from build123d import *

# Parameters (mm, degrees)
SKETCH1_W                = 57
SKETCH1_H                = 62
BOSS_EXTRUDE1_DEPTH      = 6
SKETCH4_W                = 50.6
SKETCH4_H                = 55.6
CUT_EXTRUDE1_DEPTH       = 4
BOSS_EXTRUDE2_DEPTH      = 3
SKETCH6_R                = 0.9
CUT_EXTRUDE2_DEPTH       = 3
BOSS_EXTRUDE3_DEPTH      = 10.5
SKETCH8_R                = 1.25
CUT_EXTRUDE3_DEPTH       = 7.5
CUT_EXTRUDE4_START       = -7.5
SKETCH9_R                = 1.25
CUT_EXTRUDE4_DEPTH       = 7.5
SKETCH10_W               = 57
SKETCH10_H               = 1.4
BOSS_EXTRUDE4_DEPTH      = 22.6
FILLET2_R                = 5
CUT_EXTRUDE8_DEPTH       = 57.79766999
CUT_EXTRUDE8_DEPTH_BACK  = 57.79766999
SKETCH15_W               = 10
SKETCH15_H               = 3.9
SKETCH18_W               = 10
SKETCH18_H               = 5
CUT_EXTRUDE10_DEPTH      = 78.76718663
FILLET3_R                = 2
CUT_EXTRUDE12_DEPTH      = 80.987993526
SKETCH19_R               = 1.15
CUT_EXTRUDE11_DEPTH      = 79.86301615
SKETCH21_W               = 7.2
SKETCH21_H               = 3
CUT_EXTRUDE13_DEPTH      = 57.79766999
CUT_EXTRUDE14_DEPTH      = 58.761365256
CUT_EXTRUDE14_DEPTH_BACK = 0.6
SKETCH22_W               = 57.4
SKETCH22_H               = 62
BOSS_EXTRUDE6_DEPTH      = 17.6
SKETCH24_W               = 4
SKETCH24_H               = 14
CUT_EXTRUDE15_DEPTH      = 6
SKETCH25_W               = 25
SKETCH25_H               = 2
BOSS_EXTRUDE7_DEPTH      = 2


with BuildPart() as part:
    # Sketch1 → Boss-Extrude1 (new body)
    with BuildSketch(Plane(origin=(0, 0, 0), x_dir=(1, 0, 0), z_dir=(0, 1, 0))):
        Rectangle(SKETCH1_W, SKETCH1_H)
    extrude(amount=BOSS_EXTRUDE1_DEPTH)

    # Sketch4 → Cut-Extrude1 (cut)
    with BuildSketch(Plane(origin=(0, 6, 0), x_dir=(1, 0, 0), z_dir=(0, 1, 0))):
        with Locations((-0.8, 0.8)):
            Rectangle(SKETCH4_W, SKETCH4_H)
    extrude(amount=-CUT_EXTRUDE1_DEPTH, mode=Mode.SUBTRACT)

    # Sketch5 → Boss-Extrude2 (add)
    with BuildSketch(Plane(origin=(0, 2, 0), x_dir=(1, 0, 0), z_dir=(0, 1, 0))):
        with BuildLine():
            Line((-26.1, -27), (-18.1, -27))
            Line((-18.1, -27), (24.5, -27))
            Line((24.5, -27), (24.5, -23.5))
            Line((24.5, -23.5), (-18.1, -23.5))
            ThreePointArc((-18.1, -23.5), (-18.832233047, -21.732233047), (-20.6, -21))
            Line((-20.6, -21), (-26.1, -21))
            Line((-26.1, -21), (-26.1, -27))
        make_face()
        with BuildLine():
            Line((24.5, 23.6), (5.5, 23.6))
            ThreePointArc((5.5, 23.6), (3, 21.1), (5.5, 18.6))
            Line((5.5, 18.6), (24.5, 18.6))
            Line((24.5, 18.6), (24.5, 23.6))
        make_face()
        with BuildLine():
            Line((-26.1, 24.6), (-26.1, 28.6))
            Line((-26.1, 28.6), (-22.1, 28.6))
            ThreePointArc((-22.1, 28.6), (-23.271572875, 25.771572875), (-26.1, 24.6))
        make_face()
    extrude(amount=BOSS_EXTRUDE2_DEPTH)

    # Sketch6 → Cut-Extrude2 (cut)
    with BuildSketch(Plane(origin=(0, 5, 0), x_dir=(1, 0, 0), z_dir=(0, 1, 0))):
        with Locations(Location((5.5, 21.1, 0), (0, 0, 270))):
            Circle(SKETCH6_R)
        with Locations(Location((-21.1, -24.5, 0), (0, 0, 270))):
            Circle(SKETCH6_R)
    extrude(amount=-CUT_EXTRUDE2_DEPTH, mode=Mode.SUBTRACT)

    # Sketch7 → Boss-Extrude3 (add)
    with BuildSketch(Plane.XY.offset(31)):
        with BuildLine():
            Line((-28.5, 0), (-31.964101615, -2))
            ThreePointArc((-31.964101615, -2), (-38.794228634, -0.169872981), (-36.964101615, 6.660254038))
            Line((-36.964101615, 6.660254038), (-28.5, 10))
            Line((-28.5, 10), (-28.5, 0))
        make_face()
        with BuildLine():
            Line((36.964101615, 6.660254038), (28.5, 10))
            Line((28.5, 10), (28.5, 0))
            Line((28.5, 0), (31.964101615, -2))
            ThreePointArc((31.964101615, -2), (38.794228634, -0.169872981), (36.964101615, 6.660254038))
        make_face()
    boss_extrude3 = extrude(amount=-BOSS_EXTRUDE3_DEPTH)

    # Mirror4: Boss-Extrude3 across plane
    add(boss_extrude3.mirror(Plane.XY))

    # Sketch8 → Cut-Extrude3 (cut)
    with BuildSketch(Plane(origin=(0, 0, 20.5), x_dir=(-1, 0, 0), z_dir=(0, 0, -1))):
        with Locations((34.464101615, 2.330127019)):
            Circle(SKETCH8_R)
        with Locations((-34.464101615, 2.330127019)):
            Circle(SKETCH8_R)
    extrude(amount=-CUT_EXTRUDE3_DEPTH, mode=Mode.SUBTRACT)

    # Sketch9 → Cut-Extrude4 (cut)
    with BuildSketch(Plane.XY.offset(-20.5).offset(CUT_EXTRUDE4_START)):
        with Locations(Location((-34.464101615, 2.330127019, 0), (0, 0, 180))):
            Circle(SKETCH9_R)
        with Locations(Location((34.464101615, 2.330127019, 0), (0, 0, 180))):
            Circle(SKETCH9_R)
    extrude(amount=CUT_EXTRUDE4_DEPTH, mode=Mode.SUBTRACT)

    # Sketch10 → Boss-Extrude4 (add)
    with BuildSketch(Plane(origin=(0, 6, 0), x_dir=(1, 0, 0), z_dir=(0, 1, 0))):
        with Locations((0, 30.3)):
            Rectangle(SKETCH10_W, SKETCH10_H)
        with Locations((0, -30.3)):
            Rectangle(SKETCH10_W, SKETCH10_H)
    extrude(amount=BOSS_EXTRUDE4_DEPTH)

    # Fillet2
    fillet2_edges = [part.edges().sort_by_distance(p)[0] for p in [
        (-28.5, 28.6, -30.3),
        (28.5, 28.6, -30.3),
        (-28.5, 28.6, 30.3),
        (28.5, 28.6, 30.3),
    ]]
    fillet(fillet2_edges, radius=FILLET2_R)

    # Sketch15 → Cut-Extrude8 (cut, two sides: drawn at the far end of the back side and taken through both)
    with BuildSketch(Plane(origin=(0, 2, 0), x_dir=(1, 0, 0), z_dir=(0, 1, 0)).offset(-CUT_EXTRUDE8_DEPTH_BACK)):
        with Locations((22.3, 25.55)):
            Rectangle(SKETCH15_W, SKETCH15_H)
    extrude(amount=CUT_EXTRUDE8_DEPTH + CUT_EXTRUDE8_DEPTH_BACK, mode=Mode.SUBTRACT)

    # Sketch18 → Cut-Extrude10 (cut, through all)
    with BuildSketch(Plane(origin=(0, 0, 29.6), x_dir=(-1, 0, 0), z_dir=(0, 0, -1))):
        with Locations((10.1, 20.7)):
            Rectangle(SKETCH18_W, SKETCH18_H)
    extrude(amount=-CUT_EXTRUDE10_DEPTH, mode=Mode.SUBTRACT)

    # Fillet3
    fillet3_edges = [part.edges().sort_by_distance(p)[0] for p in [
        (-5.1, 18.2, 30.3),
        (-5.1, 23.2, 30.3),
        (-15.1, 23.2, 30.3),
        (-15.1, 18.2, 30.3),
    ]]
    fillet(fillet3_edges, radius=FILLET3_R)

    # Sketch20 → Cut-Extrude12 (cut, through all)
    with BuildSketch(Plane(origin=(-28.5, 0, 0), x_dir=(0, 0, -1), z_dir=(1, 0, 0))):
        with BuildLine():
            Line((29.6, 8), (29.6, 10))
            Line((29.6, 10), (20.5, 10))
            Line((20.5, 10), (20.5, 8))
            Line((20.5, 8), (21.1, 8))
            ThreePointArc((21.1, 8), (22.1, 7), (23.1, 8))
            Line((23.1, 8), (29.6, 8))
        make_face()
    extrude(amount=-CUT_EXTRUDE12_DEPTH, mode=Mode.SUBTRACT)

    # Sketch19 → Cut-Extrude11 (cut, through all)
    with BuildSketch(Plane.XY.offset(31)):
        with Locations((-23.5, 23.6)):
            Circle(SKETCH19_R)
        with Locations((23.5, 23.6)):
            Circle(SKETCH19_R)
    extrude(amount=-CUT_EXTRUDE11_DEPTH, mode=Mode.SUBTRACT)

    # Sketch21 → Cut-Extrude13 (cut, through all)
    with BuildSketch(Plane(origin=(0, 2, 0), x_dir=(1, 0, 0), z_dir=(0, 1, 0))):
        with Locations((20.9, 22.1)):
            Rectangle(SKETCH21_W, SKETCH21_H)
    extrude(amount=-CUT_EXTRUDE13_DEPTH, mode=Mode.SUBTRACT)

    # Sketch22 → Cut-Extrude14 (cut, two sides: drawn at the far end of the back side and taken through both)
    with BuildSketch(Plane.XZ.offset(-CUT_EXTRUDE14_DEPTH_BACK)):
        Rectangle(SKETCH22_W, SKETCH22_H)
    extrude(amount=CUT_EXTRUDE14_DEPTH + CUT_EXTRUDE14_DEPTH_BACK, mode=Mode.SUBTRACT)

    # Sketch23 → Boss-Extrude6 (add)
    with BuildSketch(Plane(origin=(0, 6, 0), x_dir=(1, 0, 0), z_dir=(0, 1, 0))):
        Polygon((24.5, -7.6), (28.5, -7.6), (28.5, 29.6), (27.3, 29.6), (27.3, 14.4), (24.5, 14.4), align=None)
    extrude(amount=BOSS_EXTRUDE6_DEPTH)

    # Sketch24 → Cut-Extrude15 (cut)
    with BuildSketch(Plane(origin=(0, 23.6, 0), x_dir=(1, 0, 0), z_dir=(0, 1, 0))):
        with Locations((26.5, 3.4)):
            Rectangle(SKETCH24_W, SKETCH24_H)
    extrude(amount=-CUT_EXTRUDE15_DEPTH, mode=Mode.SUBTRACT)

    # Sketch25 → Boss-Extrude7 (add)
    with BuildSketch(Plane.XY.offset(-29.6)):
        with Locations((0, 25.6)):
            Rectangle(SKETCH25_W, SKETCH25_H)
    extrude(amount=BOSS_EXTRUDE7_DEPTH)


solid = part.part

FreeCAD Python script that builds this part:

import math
import FreeCAD as App
import Part
import Sketcher
from FreeCAD import Vector
Q = App.Units.Quantity


def edges_at(feature, points):
    """Names of the edges that pass closest to the given points."""
    edges = feature.Shape.Edges
    near = lambda p: min(range(len(edges)), key=lambda i: edges[i].distToShape(Part.Vertex(*p))[0])
    return sorted({f"Edge{near(p) + 1}" for p in points})

doc = App.newDocument("Part")
params = doc.addObject("Spreadsheet::Sheet", "Params")
for row, (alias, value) in enumerate([
    ("sketch1_width", "57 mm"),
    ("sketch1_height", "62 mm"),
    ("pad1_length", "6 mm"),
    ("sketch2_width", "50.6 mm"),
    ("sketch2_height", "55.6 mm"),
    ("pocket1_length", "4 mm"),
    ("sketch3_radius", "4 mm"),
    ("sketch3_radius2", "2.5 mm"),
    ("sketch3_width", "19 mm"),
    ("sketch3_height", "6 mm"),
    ("sketch3_width2", "50.6 mm"),
    ("pad2_length", "3 mm"),
    ("sketch4_diameter", "1.8 mm"),
    ("pocket2_length", "3 mm"),
    ("sketch5_radius", "5 mm"),
    ("sketch5_height", "10 mm"),
    ("sketch5_length", "4 mm"),
    ("pad3_length", "10.5 mm"),
    ("sketch6_diameter", "2.5 mm"),
    ("pocket3_length", "7.5 mm"),
    ("sketch7_diameter", "2.5 mm"),
    ("pocket4_length", "7.5 mm"),
    ("sketch8_width", "57 mm"),
    ("sketch8_height", "1.4 mm"),
    ("pad4_length", "22.6 mm"),
    ("fillet_radius", "5 mm"),
    ("sketch9_width", "10 mm"),
    ("sketch9_height", "3.9 mm"),
    ("sketch10_width", "10 mm"),
    ("sketch10_height", "5 mm"),
    ("fillet2_radius", "2 mm"),
    ("sketch11_radius", "1 mm"),
    ("sketch11_width", "2 mm"),
    ("sketch11_height", "9.1 mm"),
    ("sketch11_height2", "0.6 mm"),
    ("sketch12_diameter", "2.3 mm"),
    ("sketch13_height", "3 mm"),
    ("sketch13_width", "7.2 mm"),
    ("sketch14_height", "62 mm"),
    ("sketch14_width", "57.4 mm"),
    ("pocket10_length", "58.761365 mm"),
    ("pocket10_length2", "0.6 mm"),
    ("sketch15_width", "4 mm"),
    ("sketch15_height", "22 mm"),
    ("sketch15_width2", "1.2 mm"),
    ("sketch15_height2", "37.2 mm"),
    ("pad5_length", "17.6 mm"),
    ("sketch16_width", "4 mm"),
    ("sketch16_height", "14 mm"),
    ("pocket11_length", "6 mm"),
    ("sketch17_width", "25 mm"),
    ("sketch17_height", "2 mm"),
    ("pad6_length", "2 mm"),
], start=1):
    params.set(f"A{row}", alias)
    params.set(f"B{row}", "=" + value)
    params.setAlias(f"B{row}", alias)

body = doc.addObject("PartDesign::Body", "Body")

# Sketch on XZ plane
sketch1 = body.newObject("Sketcher::SketchObject", "Sketch")
sketch1.AttachmentSupport = (doc.getObject("XZ_Plane"), [""])
sketch1.MapMode = "FlatFace"
sketch1.addGeometry(Part.LineSegment(Vector(-28.5, -31, 0), Vector(-28.5, 31, 0)), False)
sketch1.addGeometry(Part.LineSegment(Vector(-28.5, 31, 0), Vector(28.5, 31, 0)), False)
sketch1.addGeometry(Part.LineSegment(Vector(28.5, 31, 0), Vector(28.5, -31, 0)), False)
sketch1.addGeometry(Part.LineSegment(Vector(28.5, -31, 0), Vector(-28.5, -31, 0)), False)
sketch1.addConstraint(Sketcher.Constraint("Coincident", 0, 2, 1, 1))
sketch1.addConstraint(Sketcher.Constraint("Coincident", 1, 2, 2, 1))
sketch1.addConstraint(Sketcher.Constraint("Coincident", 2, 2, 3, 1))
sketch1.addConstraint(Sketcher.Constraint("Coincident", 3, 2, 0, 1))
sketch1.addConstraint(Sketcher.Constraint("Vertical", 0))
sketch1.addConstraint(Sketcher.Constraint("Horizontal", 1))
sketch1.addConstraint(Sketcher.Constraint("Vertical", 2))
sketch1.addConstraint(Sketcher.Constraint("Horizontal", 3))
sketch1.addConstraint(Sketcher.Constraint("Symmetric", 0, 2, 2, 2, -1, 1))
sketch1.addConstraint(Sketcher.Constraint("DistanceX", 1, 1, 1, 2, Q("57 mm")))
sketch1.addConstraint(Sketcher.Constraint("DistanceY", 0, 1, 0, 2, Q("62 mm")))
sketch1.setExpression("Constraints[9]", "Params.sketch1_width")
sketch1.setExpression("Constraints[10]", "Params.sketch1_height")
pad1 = body.newObject("PartDesign::Pad", "Pad")
pad1.Profile = sketch1
pad1.setExpression("Length", "Params.pad1_length")
pad1.Reversed = True

# Sketch on XZ plane
sketch2 = body.newObject("Sketcher::SketchObject", "Sketch001")
sketch2.AttachmentSupport = (doc.getObject("XZ_Plane"), [""])
sketch2.MapMode = "FlatFace"
sketch2.AttachmentOffset = App.Placement(Vector(0, 0, -6), App.Rotation())
sketch2.addGeometry(Part.LineSegment(Vector(-26.1, -28.6, 0), Vector(-26.1, 27, 0)), False)
sketch2.addGeometry(Part.LineSegment(Vector(-26.1, 27, 0), Vector(24.5, 27, 0)), False)
sketch2.addGeometry(Part.LineSegment(Vector(24.5, 27, 0), Vector(24.5, -28.6, 0)), False)
sketch2.addGeometry(Part.LineSegment(Vector(24.5, -28.6, 0), Vector(-26.1, -28.6, 0)), False)
sketch2.addConstraint(Sketcher.Constraint("Coincident", 0, 2, 1, 1))
sketch2.addConstraint(Sketcher.Constraint("Coincident", 1, 2, 2, 1))
sketch2.addConstraint(Sketcher.Constraint("Coincident", 2, 2, 3, 1))
sketch2.addConstraint(Sketcher.Constraint("Coincident", 3, 2, 0, 1))
sketch2.addConstraint(Sketcher.Constraint("Vertical", 0))
sketch2.addConstraint(Sketcher.Constraint("Horizontal", 1))
sketch2.addConstraint(Sketcher.Constraint("Vertical", 2))
sketch2.addConstraint(Sketcher.Constraint("Horizontal", 3))
sketch2.addConstraint(Sketcher.Constraint("DistanceX", 1, 1, 1, 2, Q("50.6 mm")))
sketch2.addConstraint(Sketcher.Constraint("DistanceY", 0, 1, 0, 2, Q("55.6 mm")))
sketch2.addConstraint(Sketcher.Constraint("DistanceY", -1, 1, 0, 2, Q("27 mm")))
sketch2.addConstraint(Sketcher.Constraint("DistanceX", 0, 2, -1, 1, Q("26.1 mm")))
sketch2.setExpression("Constraints[8]", "Params.sketch2_width")
sketch2.setExpression("Constraints[9]", "Params.sketch2_height")
pocket1 = body.newObject("PartDesign::Pocket", "Pocket")
pocket1.Profile = sketch2
pocket1.setExpression("Length", "Params.pocket1_length")
pocket1.Reversed = True

# Sketch on XZ plane
sketch3 = body.newObject("Sketcher::SketchObject", "Sketch002")
sketch3.AttachmentSupport = (doc.getObject("XZ_Plane"), [""])
sketch3.MapMode = "FlatFace"
sketch3.AttachmentOffset = App.Placement(Vector(0, 0, -2), App.Rotation())
sketch3.addGeometry(Part.LineSegment(Vector(-26.1, 27, 0), Vector(24.5, 27, 0)), False)
sketch3.addGeometry(Part.LineSegment(Vector(24.5, 27, 0), Vector(24.5, 23.5, 0)), False)
sketch3.addGeometry(Part.LineSegment(Vector(24.5, 23.5, 0), Vector(-18.1, 23.5, 0)), False)
sketch3.addGeometry(Part.ArcOfCircle(Part.Circle(Vector(-20.6, 23.5, 0), Vector(0, 0, 1), 2.5), math.radians(-90), math.radians(0)), False)
sketch3.addGeometry(Part.LineSegment(Vector(-20.6, 21, 0), Vector(-26.1, 21, 0)), False)
sketch3.addGeometry(Part.LineSegment(Vector(-26.1, 21, 0), Vector(-26.1, 27, 0)), False)
sketch3.addGeometry(Part.LineSegment(Vector(24.5, -23.6, 0), Vector(5.5, -23.6, 0)), False)
sketch3.addGeometry(Part.ArcOfCircle(Part.Circle(Vector(5.5, -21.1, 0), Vector(0, 0, 1), 2.5), math.radians(90), math.radians(270)), False)
sketch3.addGeometry(Part.LineSegment(Vector(5.5, -18.6, 0), Vector(24.5, -18.6, 0)), False)
sketch3.addGeometry(Part.LineSegment(Vector(24.5, -18.6, 0), Vector(24.5, -23.6, 0)), False)
sketch3.addGeometry(Part.LineSegment(Vector(-26.1, -28.6, 0), Vector(-26.1, -24.6, 0)), False)
sketch3.addGeometry(Part.ArcOfCircle(Part.Circle(Vector(-26.1, -28.6, 0), Vector(0, 0, 1), 4), math.radians(0), math.radians(90)), False)
sketch3.addGeometry(Part.LineSegment(Vector(-22.1, -28.6, 0), Vector(-26.1, -28.6, 0)), False)
sketch3.addConstraint(Sketcher.Constraint("Coincident", 0, 2, 1, 1))
sketch3.addConstraint(Sketcher.Constraint("Coincident", 1, 2, 2, 1))
sketch3.addConstraint(Sketcher.Constraint("Coincident", 2, 2, 3, 2))
sketch3.addConstraint(Sketcher.Constraint("Tangent", 3, 1, 4, 1))
sketch3.addConstraint(Sketcher.Constraint("Coincident", 4, 2, 5, 1))
sketch3.addConstraint(Sketcher.Constraint("Coincident", 5, 2, 0, 1))
sketch3.addConstraint(Sketcher.Constraint("Tangent", 6, 2, 7, 2))
sketch3.addConstraint(Sketcher.Constraint("Tangent", 7, 1, 8, 1))
sketch3.addConstraint(Sketcher.Constraint("Coincident", 8, 2, 9, 1))
sketch3.addConstraint(Sketcher.Constraint("Coincident", 9, 2, 6, 1))
sketch3.addConstraint(Sketcher.Constraint("Coincident", 10, 2, 11, 2))
sketch3.addConstraint(Sketcher.Constraint("Coincident", 11, 1, 12, 1))
sketch3.addConstraint(Sketcher.Constraint("Coincident", 12, 2, 10, 1))
sketch3.addConstraint(Sketcher.Constraint("Horizontal", 0))
sketch3.addConstraint(Sketcher.Constraint("Vertical", 1))
sketch3.addConstraint(Sketcher.Constraint("Horizontal", 2))
sketch3.addConstraint(Sketcher.Constraint("Horizontal", 4))
sketch3.addConstraint(Sketcher.Constraint("Vertical", 5))
sketch3.addConstraint(Sketcher.Constraint("Horizontal", 6))
sketch3.addConstraint(Sketcher.Constraint("Horizontal", 8))
sketch3.addConstraint(Sketcher.Constraint("Vertical", 9))
sketch3.addConstraint(Sketcher.Constraint("Vertical", 10))
sketch3.addConstraint(Sketcher.Constraint("Horizontal", 12))
sketch3.addConstraint(Sketcher.Constraint("Coincident", 12, 2, 11, 3))
sketch3.addConstraint(Sketcher.Constraint("Equal", 3, 7))
sketch3.addConstraint(Sketcher.Constraint("Horizontal", 3, 3, 1, 2))
sketch3.addConstraint(Sketcher.Constraint("Vertical", 11, 3, 4, 2))
sketch3.addConstraint(Sketcher.Constraint("Vertical", 1, 2, 8, 2))
sketch3.addConstraint(Sketcher.Constraint("Radius", 11, Q("4 mm")))
sketch3.addConstraint(Sketcher.Constraint("Radius", 3, Q("2.5 mm")))
sketch3.addConstraint(Sketcher.Constraint("DistanceX", 6, 2, 6, 1, Q("19 mm")))
sketch3.addConstraint(Sketcher.Constraint("DistanceY", 5, 1, 5, 2, Q("6 mm")))
sketch3.addConstraint(Sketcher.Constraint("DistanceX", 0, 1, 0, 2, Q("50.6 mm")))
sketch3.addConstraint(Sketcher.Constraint("DistanceX", 2, 2, 2, 1, Q("42.6 mm")))
sketch3.addConstraint(Sketcher.Constraint("DistanceY", -1, 1, 0, 2, Q("27 mm")))
sketch3.addConstraint(Sketcher.Constraint("DistanceY", 11, 3, 6, 2, Q("5 mm")))
sketch3.addConstraint(Sketcher.Constraint("DistanceX", 3, 3, -1, 1, Q("20.6 mm")))
sketch3.addConstraint(Sketcher.Constraint("DistanceY", 7, 3, -1, 1, Q("21.1 mm")))
sketch3.setExpression("Constraints[28]", "Params.sketch3_radius")
sketch3.setExpression("Constraints[29]", "Params.sketch3_radius2")
sketch3.setExpression("Constraints[30]", "Params.sketch3_width")
sketch3.setExpression("Constraints[31]", "Params.sketch3_height")
sketch3.setExpression("Constraints[32]", "Params.sketch3_width2")
pad2 = body.newObject("PartDesign::Pad", "Pad001")
pad2.Profile = sketch3
pad2.setExpression("Length", "Params.pad2_length")
pad2.Reversed = True

# Sketch on XZ plane
sketch4 = body.newObject("Sketcher::SketchObject", "Sketch003")
sketch4.AttachmentSupport = (doc.getObject("XZ_Plane"), [""])
sketch4.MapMode = "FlatFace"
sketch4.AttachmentOffset = App.Placement(Vector(0, 0, -5), App.Rotation())
sketch4.addGeometry(Part.Circle(Vector(5.5, -21.1, 0), Vector(0, 0, 1), 0.9), False)
sketch4.addGeometry(Part.Circle(Vector(-21.1, 24.5, 0), Vector(0, 0, 1), 0.9), False)
sketch4.addConstraint(Sketcher.Constraint("Equal", 0, 1))
sketch4.addConstraint(Sketcher.Constraint("Diameter", 0, Q("1.8 mm")))
sketch4.addConstraint(Sketcher.Constraint("DistanceX", -1, 1, 0, 3, Q("5.5 mm")))
sketch4.addConstraint(Sketcher.Constraint("DistanceY", 0, 3, -1, 1, Q("21.1 mm")))
sketch4.addConstraint(Sketcher.Constraint("DistanceX", 1, 3, -1, 1, Q("21.1 mm")))
sketch4.addConstraint(Sketcher.Constraint("DistanceY", -1, 1, 1, 3, Q("24.5 mm")))
sketch4.setExpression("Constraints[1]", "Params.sketch4_diameter")
pocket2 = body.newObject("PartDesign::Pocket", "Pocket001")
pocket2.Profile = sketch4
pocket2.setExpression("Length", "Params.pocket2_length")
pocket2.Reversed = True

# Sketch on XY plane
sketch5 = body.newObject("Sketcher::SketchObject", "Sketch004")
sketch5.AttachmentSupport = (doc.getObject("XY_Plane"), [""])
sketch5.MapMode = "FlatFace"
sketch5.AttachmentOffset = App.Placement(Vector(0, 0, 31), App.Rotation())
sketch5.addGeometry(Part.LineSegment(Vector(-31.964102, -2, 0), Vector(-28.5, 0, 0)), False)
sketch5.addGeometry(Part.LineSegment(Vector(-28.5, 0, 0), Vector(-28.5, 10, 0)), False)
sketch5.addGeometry(Part.LineSegment(Vector(-28.5, 10, 0), Vector(-36.964102, 6.660254, 0)), False)
sketch5.addGeometry(Part.ArcOfCircle(Part.Circle(Vector(-34.464102, 2.330127, 0), Vector(0, 0, 1), 5), math.radians(120), math.radians(300)), False)
sketch5.addGeometry(Part.LineSegment(Vector(36.964102, 6.660254, 0), Vector(28.5, 10, 0)), False)
sketch5.addGeometry(Part.LineSegment(Vector(28.5, 10, 0), Vector(28.5, 0, 0)), False)
sketch5.addGeometry(Part.LineSegment(Vector(28.5, 0, 0), Vector(31.964102, -2, 0)), False)
sketch5.addGeometry(Part.ArcOfCircle(Part.Circle(Vector(34.464102, 2.330127, 0), Vector(0, 0, 1), 5), math.radians(-120), math.radians(60)), False)
sketch5.addConstraint(Sketcher.Constraint("Coincident", 0, 2, 1, 1))
sketch5.addConstraint(Sketcher.Constraint("Coincident", 1, 2, 2, 1))
sketch5.addConstraint(Sketcher.Constraint("Coincident", 2, 2, 3, 1))
sketch5.addConstraint(Sketcher.Constraint("Tangent", 3, 2, 0, 1))
sketch5.addConstraint(Sketcher.Constraint("Coincident", 4, 2, 5, 1))
sketch5.addConstraint(Sketcher.Constraint("Coincident", 5, 2, 6, 1))
sketch5.addConstraint(Sketcher.Constraint("Tangent", 6, 2, 7, 1))
sketch5.addConstraint(Sketcher.Constraint("Coincident", 7, 2, 4, 1))
sketch5.addConstraint(Sketcher.Constraint("Vertical", 1))
sketch5.addConstraint(Sketcher.Constraint("Vertical", 5))
sketch5.addConstraint(Sketcher.Constraint("Equal", 3, 7))
sketch5.addConstraint(Sketcher.Constraint("Symmetric", 0, 2, 5, 2, -1, 1))
sketch5.addConstraint(Sketcher.Constraint("Symmetric", 3, 3, 7, 3, -2))
sketch5.addConstraint(Sketcher.Constraint("PointOnObject", 0, 2, -1))
sketch5.addConstraint(Sketcher.Constraint("Horizontal", 1, 2, 4, 2))
sketch5.addConstraint(Sketcher.Constraint("Horizontal", 2, 2, 7, 2))
sketch5.addConstraint(Sketcher.Constraint("Radius", 3, Q("5 mm")))
sketch5.addConstraint(Sketcher.Constraint("DistanceY", 1, 1, 1, 2, Q("10 mm")))
sketch5.addConstraint(Sketcher.Constraint("Angle", 0, Q("30 deg")))
sketch5.addConstraint(Sketcher.Constraint("Distance", 0, Q("4 mm")))
sketch5.addConstraint(Sketcher.Constraint("DistanceX", 2, 2, 3, 2, Q("5 mm")))
sketch5.addConstraint(Sketcher.Constraint("DistanceX", 1, 2, 4, 2, Q("57 mm")))
sketch5.setExpression("Constraints[16]", "Params.sketch5_radius")
sketch5.setExpression("Constraints[17]", "Params.sketch5_height")
sketch5.setExpression("Constraints[19]", "Params.sketch5_length")
pad3 = body.newObject("PartDesign::Pad", "Pad002")
pad3.Profile = sketch5
pad3.setExpression("Length", "Params.pad3_length")
pad3.Reversed = True
doc.recompute()

mirrored = body.newObject("PartDesign::Mirrored", "Mirrored")
mirrored.Originals = [pad3]
mirrored.MirrorPlane = (doc.getObject("XY_Plane"), [""])
body.Tip = mirrored

# Sketch on XY plane
sketch6 = body.newObject("Sketcher::SketchObject", "Sketch005")
sketch6.AttachmentSupport = (doc.getObject("XY_Plane"), [""])
sketch6.MapMode = "FlatFace"
sketch6.AttachmentOffset = App.Placement(Vector(0, 0, 20.5), App.Rotation())
sketch6.addGeometry(Part.Circle(Vector(-34.464102, 2.330127, 0), Vector(0, 0, 1), 1.25), False)
sketch6.addGeometry(Part.Circle(Vector(34.464102, 2.330127, 0), Vector(0, 0, 1), 1.25), False)
sketch6.addConstraint(Sketcher.Constraint("Equal", 0, 1))
sketch6.addConstraint(Sketcher.Constraint("Symmetric", 0, 3, 1, 3, -2))
sketch6.addConstraint(Sketcher.Constraint("Diameter", 0, Q("2.5 mm")))
sketch6.addConstraint(Sketcher.Constraint("DistanceX", 0, 3, -1, 1, Q("34.464102 mm")))
sketch6.addConstraint(Sketcher.Constraint("DistanceY", -1, 1, 0, 3, Q("2.330127 mm")))
sketch6.setExpression("Constraints[2]", "Params.sketch6_diameter")
pocket3 = body.newObject("PartDesign::Pocket", "Pocket002")
pocket3.Profile = sketch6
pocket3.setExpression("Length", "Params.pocket3_length")
pocket3.Reversed = True

# Sketch on XY plane
sketch7 = body.newObject("Sketcher::SketchObject", "Sketch006")
sketch7.AttachmentSupport = (doc.getObject("XY_Plane"), [""])
sketch7.MapMode = "FlatFace"
sketch7.AttachmentOffset = App.Placement(Vector(0, 0, -28), App.Rotation())
sketch7.addGeometry(Part.Circle(Vector(-34.464102, 2.330127, 0), Vector(0, 0, 1), 1.25), False)
sketch7.addGeometry(Part.Circle(Vector(34.464102, 2.330127, 0), Vector(0, 0, 1), 1.25), False)
sketch7.addConstraint(Sketcher.Constraint("Equal", 0, 1))
sketch7.addConstraint(Sketcher.Constraint("Symmetric", 0, 3, 1, 3, -2))
sketch7.addConstraint(Sketcher.Constraint("Diameter", 0, Q("2.5 mm")))
sketch7.addConstraint(Sketcher.Constraint("DistanceX", 0, 3, -1, 1, Q("34.464102 mm")))
sketch7.addConstraint(Sketcher.Constraint("DistanceY", -1, 1, 0, 3, Q("2.330127 mm")))
sketch7.setExpression("Constraints[2]", "Params.sketch7_diameter")
pocket4 = body.newObject("PartDesign::Pocket", "Pocket003")
pocket4.Profile = sketch7
pocket4.setExpression("Length", "Params.pocket4_length")
pocket4.Reversed = True

# Sketch on XZ plane
sketch8 = body.newObject("Sketcher::SketchObject", "Sketch007")
sketch8.AttachmentSupport = (doc.getObject("XZ_Plane"), [""])
sketch8.MapMode = "FlatFace"
sketch8.AttachmentOffset = App.Placement(Vector(0, 0, -6), App.Rotation())
sketch8.addGeometry(Part.LineSegment(Vector(-28.5, -31, 0), Vector(-28.5, -29.6, 0)), False)
sketch8.addGeometry(Part.LineSegment(Vector(-28.5, -29.6, 0), Vector(28.5, -29.6, 0)), False)
sketch8.addGeometry(Part.LineSegment(Vector(28.5, -29.6, 0), Vector(28.5, -31, 0)), False)
sketch8.addGeometry(Part.LineSegment(Vector(28.5, -31, 0), Vector(-28.5, -31, 0)), False)
sketch8.addGeometry(Part.LineSegment(Vector(-28.5, 29.6, 0), Vector(-28.5, 31, 0)), False)
sketch8.addGeometry(Part.LineSegment(Vector(-28.5, 31, 0), Vector(28.5, 31, 0)), False)
sketch8.addGeometry(Part.LineSegment(Vector(28.5, 31, 0), Vector(28.5, 29.6, 0)), False)
sketch8.addGeometry(Part.LineSegment(Vector(28.5, 29.6, 0), Vector(-28.5, 29.6, 0)), False)
sketch8.addConstraint(Sketcher.Constraint("Coincident", 0, 2, 1, 1))
sketch8.addConstraint(Sketcher.Constraint("Coincident", 1, 2, 2, 1))
sketch8.addConstraint(Sketcher.Constraint("Coincident", 2, 2, 3, 1))
sketch8.addConstraint(Sketcher.Constraint("Coincident", 3, 2, 0, 1))
sketch8.addConstraint(Sketcher.Constraint("Coincident", 4, 2, 5, 1))
sketch8.addConstraint(Sketcher.Constraint("Coincident", 5, 2, 6, 1))
sketch8.addConstraint(Sketcher.Constraint("Coincident", 6, 2, 7, 1))
sketch8.addConstraint(Sketcher.Constraint("Coincident", 7, 2, 4, 1))
sketch8.addConstraint(Sketcher.Constraint("Vertical", 0))
sketch8.addConstraint(Sketcher.Constraint("Horizontal", 1))
sketch8.addConstraint(Sketcher.Constraint("Vertical", 2))
sketch8.addConstraint(Sketcher.Constraint("Horizontal", 3))
sketch8.addConstraint(Sketcher.Constraint("Vertical", 4))
sketch8.addConstraint(Sketcher.Constraint("Horizontal", 5))
sketch8.addConstraint(Sketcher.Constraint("Vertical", 6))
sketch8.addConstraint(Sketcher.Constraint("Horizontal", 7))
sketch8.addConstraint(Sketcher.Constraint("Symmetric", 2, 2, 4, 2, -1, 1))
sketch8.addConstraint(Sketcher.Constraint("Symmetric", 0, 2, 6, 2, -1, 1))
sketch8.addConstraint(Sketcher.Constraint("Vertical", 3, 2, 4, 2))
sketch8.addConstraint(Sketcher.Constraint("DistanceX", 1, 1, 1, 2, Q("57 mm")))
sketch8.addConstraint(Sketcher.Constraint("DistanceY", 0, 1, 0, 2, Q("1.4 mm")))
sketch8.addConstraint(Sketcher.Constraint("DistanceY", 2, 2, -1, 1, Q("31 mm")))
sketch8.setExpression("Constraints[19]", "Params.sketch8_width")
sketch8.setExpression("Constraints[20]", "Params.sketch8_height")
pad4 = body.newObject("PartDesign::Pad", "Pad003")
pad4.Profile = sketch8
pad4.setExpression("Length", "Params.pad4_length")
pad4.Reversed = True
doc.recompute()

fillet = body.newObject("PartDesign::Fillet", "Fillet")
fillet.Base = (pad4, edges_at(pad4, [
    (-28.5, 28.6, -30.3),
    (28.5, 28.6, -30.3),
    (-28.5, 28.6, 30.3),
    (28.5, 28.6, 30.3),
]))
fillet.setExpression("Radius", "Params.fillet_radius")

# Sketch on XZ plane
sketch9 = body.newObject("Sketcher::SketchObject", "Sketch008")
sketch9.AttachmentSupport = (doc.getObject("XZ_Plane"), [""])
sketch9.MapMode = "FlatFace"
sketch9.AttachmentOffset = App.Placement(Vector(0, 0, -2), App.Rotation())
sketch9.addGeometry(Part.LineSegment(Vector(17.3, -27.5, 0), Vector(17.3, -23.6, 0)), False)
sketch9.addGeometry(Part.LineSegment(Vector(17.3, -23.6, 0), Vector(27.3, -23.6, 0)), False)
sketch9.addGeometry(Part.LineSegment(Vector(27.3, -23.6, 0), Vector(27.3, -27.5, 0)), False)
sketch9.addGeometry(Part.LineSegment(Vector(27.3, -27.5, 0), Vector(17.3, -27.5, 0)), False)
sketch9.addConstraint(Sketcher.Constraint("Coincident", 0, 2, 1, 1))
sketch9.addConstraint(Sketcher.Constraint("Coincident", 1, 2, 2, 1))
sketch9.addConstraint(Sketcher.Constraint("Coincident", 2, 2, 3, 1))
sketch9.addConstraint(Sketcher.Constraint("Coincident", 3, 2, 0, 1))
sketch9.addConstraint(Sketcher.Constraint("Vertical", 0))
sketch9.addConstraint(Sketcher.Constraint("Horizontal", 1))
sketch9.addConstraint(Sketcher.Constraint("Vertical", 2))
sketch9.addConstraint(Sketcher.Constraint("Horizontal", 3))
sketch9.addConstraint(Sketcher.Constraint("DistanceX", 1, 1, 1, 2, Q("10 mm")))
sketch9.addConstraint(Sketcher.Constraint("DistanceY", 0, 1, 0, 2, Q("3.9 mm")))
sketch9.addConstraint(Sketcher.Constraint("DistanceX", -1, 1, 0, 2, Q("17.3 mm")))
sketch9.addConstraint(Sketcher.Constraint("DistanceY", 0, 2, -1, 1, Q("23.6 mm")))
sketch9.setExpression("Constraints[8]", "Params.sketch9_width")
sketch9.setExpression("Constraints[9]", "Params.sketch9_height")
pocket5 = body.newObject("PartDesign::Pocket", "Pocket004")
pocket5.Profile = sketch9
pocket5.Type = "ThroughAll"
pocket5.Midplane = True

# Sketch on XY plane
sketch10 = body.newObject("Sketcher::SketchObject", "Sketch009")
sketch10.AttachmentSupport = (doc.getObject("XY_Plane"), [""])
sketch10.MapMode = "FlatFace"
sketch10.AttachmentOffset = App.Placement(Vector(0, 0, 29.6), App.Rotation())
sketch10.addGeometry(Part.LineSegment(Vector(-5.1, 23.2, 0), Vector(-5.1, 18.2, 0)), False)
sketch10.addGeometry(Part.LineSegment(Vector(-5.1, 18.2, 0), Vector(-15.1, 18.2, 0)), False)
sketch10.addGeometry(Part.LineSegment(Vector(-15.1, 18.2, 0), Vector(-15.1, 23.2, 0)), False)
sketch10.addGeometry(Part.LineSegment(Vector(-15.1, 23.2, 0), Vector(-5.1, 23.2, 0)), False)
sketch10.addConstraint(Sketcher.Constraint("Coincident", 0, 2, 1, 1))
sketch10.addConstraint(Sketcher.Constraint("Coincident", 1, 2, 2, 1))
sketch10.addConstraint(Sketcher.Constraint("Coincident", 2, 2, 3, 1))
sketch10.addConstraint(Sketcher.Constraint("Coincident", 3, 2, 0, 1))
sketch10.addConstraint(Sketcher.Constraint("Vertical", 0))
sketch10.addConstraint(Sketcher.Constraint("Horizontal", 1))
sketch10.addConstraint(Sketcher.Constraint("Vertical", 2))
sketch10.addConstraint(Sketcher.Constraint("Horizontal", 3))
sketch10.addConstraint(Sketcher.Constraint("DistanceX", 1, 2, 1, 1, Q("10 mm")))
sketch10.addConstraint(Sketcher.Constraint("DistanceY", 0, 2, 0, 1, Q("5 mm")))
sketch10.addConstraint(Sketcher.Constraint("DistanceX", 0, 2, -1, 1, Q("5.1 mm")))
sketch10.addConstraint(Sketcher.Constraint("DistanceY", -1, 1, 0, 2, Q("18.2 mm")))
sketch10.setExpression("Constraints[8]", "Params.sketch10_width")
sketch10.setExpression("Constraints[9]", "Params.sketch10_height")
pocket6 = body.newObject("PartDesign::Pocket", "Pocket005")
pocket6.Profile = sketch10
pocket6.Type = "ThroughAll"
pocket6.Reversed = True
doc.recompute()

fillet2 = body.newObject("PartDesign::Fillet", "Fillet001")
fillet2.Base = (pocket6, edges_at(pocket6, [
    (-5.1, 18.2, 30.3),
    (-5.1, 23.2, 30.3),
    (-15.1, 23.2, 30.3),
    (-15.1, 18.2, 30.3),
]))
fillet2.setExpression("Radius", "Params.fillet2_radius")

# Sketch on YZ plane
sketch11 = body.newObject("Sketcher::SketchObject", "Sketch010")
sketch11.AttachmentSupport = (doc.getObject("YZ_Plane"), [""])
sketch11.MapMode = "FlatFace"
sketch11.AttachmentOffset = App.Placement(Vector(0, 0, -28.5), App.Rotation())
sketch11.addGeometry(Part.LineSegment(Vector(8, -29.6, 0), Vector(10, -29.6, 0)), False)
sketch11.addGeometry(Part.LineSegment(Vector(10, -29.6, 0), Vector(10, -20.5, 0)), False)
sketch11.addGeometry(Part.LineSegment(Vector(10, -20.5, 0), Vector(8, -20.5, 0)), False)
sketch11.addGeometry(Part.LineSegment(Vector(8, -20.5, 0), Vector(8, -21.1, 0)), False)
sketch11.addGeometry(Part.ArcOfCircle(Part.Circle(Vector(8, -22.1, 0), Vector(0, 0, 1), 1), math.radians(90), math.radians(270)), False)
sketch11.addGeometry(Part.LineSegment(Vector(8, -23.1, 0), Vector(8, -29.6, 0)), False)
sketch11.addConstraint(Sketcher.Constraint("Coincident", 0, 2, 1, 1))
sketch11.addConstraint(Sketcher.Constraint("Coincident", 1, 2, 2, 1))
sketch11.addConstraint(Sketcher.Constraint("Coincident", 2, 2, 3, 1))
sketch11.addConstraint(Sketcher.Constraint("Coincident", 3, 2, 4, 1))
sketch11.addConstraint(Sketcher.Constraint("Coincident", 4, 2, 5, 1))
sketch11.addConstraint(Sketcher.Constraint("Coincident", 5, 2, 0, 1))
sketch11.addConstraint(Sketcher.Constraint("Horizontal", 0))
sketch11.addConstraint(Sketcher.Constraint("Vertical", 1))
sketch11.addConstraint(Sketcher.Constraint("Horizontal", 2))
sketch11.addConstraint(Sketcher.Constraint("Vertical", 3))
sketch11.addConstraint(Sketcher.Constraint("Vertical", 5))
sketch11.addConstraint(Sketcher.Constraint("Vertical", 4, 3, 2, 2))
sketch11.addConstraint(Sketcher.Constraint("Vertical", 3, 2, 4, 2))
sketch11.addConstraint(Sketcher.Constraint("Radius", 4, Q("1 mm")))
sketch11.addConstraint(Sketcher.Constraint("DistanceX", 0, 1, 0, 2, Q("2 mm")))
sketch11.addConstraint(Sketcher.Constraint("DistanceY", 1, 1, 1, 2, Q("9.1 mm")))
sketch11.addConstraint(Sketcher.Constraint("DistanceY", 3, 2, 3, 1, Q("0.6 mm")))
sketch11.addConstraint(Sketcher.Constraint("DistanceX", -1, 1, 4, 3, Q("8 mm")))
sketch11.addConstraint(Sketcher.Constraint("DistanceY", 4, 3, -1, 1, Q("22.1 mm")))
sketch11.setExpression("Constraints[13]", "Params.sketch11_radius")
sketch11.setExpression("Constraints[14]", "Params.sketch11_width")
sketch11.setExpression("Constraints[15]", "Params.sketch11_height")
sketch11.setExpression("Constraints[16]", "Params.sketch11_height2")
pocket7 = body.newObject("PartDesign::Pocket", "Pocket006")
pocket7.Profile = sketch11
pocket7.Type = "ThroughAll"

# Sketch on XY plane
sketch12 = body.newObject("Sketcher::SketchObject", "Sketch011")
sketch12.AttachmentSupport = (doc.getObject("XY_Plane"), [""])
sketch12.MapMode = "FlatFace"
sketch12.AttachmentOffset = App.Placement(Vector(0, 0, 31), App.Rotation())
sketch12.addGeometry(Part.Circle(Vector(-23.5, 23.6, 0), Vector(0, 0, 1), 1.15), False)
sketch12.addGeometry(Part.Circle(Vector(23.5, 23.6, 0), Vector(0, 0, 1), 1.15), False)
sketch12.addConstraint(Sketcher.Constraint("Equal", 0, 1))
sketch12.addConstraint(Sketcher.Constraint("Symmetric", 0, 3, 1, 3, -2))
sketch12.addConstraint(Sketcher.Constraint("Diameter", 0, Q("2.3 mm")))
sketch12.addConstraint(Sketcher.Constraint("DistanceX", 0, 3, 1, 3, Q("47 mm")))
sketch12.addConstraint(Sketcher.Constraint("DistanceY", -1, 1, 0, 3, Q("23.6 mm")))
sketch12.setExpression("Constraints[2]", "Params.sketch12_diameter")
pocket8 = body.newObject("PartDesign::Pocket", "Pocket007")
pocket8.Profile = sketch12
pocket8.Type = "ThroughAll"

# Sketch on XZ plane
sketch13 = body.newObject("Sketcher::SketchObject", "Sketch012")
sketch13.AttachmentSupport = (doc.getObject("XZ_Plane"), [""])
sketch13.MapMode = "FlatFace"
sketch13.AttachmentOffset = App.Placement(Vector(0, 0, -2), App.Rotation())
sketch13.addGeometry(Part.LineSegment(Vector(17.3, -23.6, 0), Vector(17.3, -20.6, 0)), False)
sketch13.addGeometry(Part.LineSegment(Vector(17.3, -20.6, 0), Vector(24.5, -20.6, 0)), False)
sketch13.addGeometry(Part.LineSegment(Vector(24.5, -20.6, 0), Vector(24.5, -23.6, 0)), False)
sketch13.addGeometry(Part.LineSegment(Vector(24.5, -23.6, 0), Vector(17.3, -23.6, 0)), False)
sketch13.addConstraint(Sketcher.Constraint("Coincident", 0, 2, 1, 1))
sketch13.addConstraint(Sketcher.Constraint("Coincident", 1, 2, 2, 1))
sketch13.addConstraint(Sketcher.Constraint("Coincident", 2, 2, 3, 1))
sketch13.addConstraint(Sketcher.Constraint("Coincident", 3, 2, 0, 1))
sketch13.addConstraint(Sketcher.Constraint("Vertical", 0))
sketch13.addConstraint(Sketcher.Constraint("Horizontal", 1))
sketch13.addConstraint(Sketcher.Constraint("Vertical", 2))
sketch13.addConstraint(Sketcher.Constraint("Horizontal", 3))
sketch13.addConstraint(Sketcher.Constraint("DistanceY", 0, 1, 0, 2, Q("3 mm")))
sketch13.addConstraint(Sketcher.Constraint("DistanceX", 1, 1, 1, 2, Q("7.2 mm")))
sketch13.addConstraint(Sketcher.Constraint("DistanceX", -1, 1, 0, 2, Q("17.3 mm")))
sketch13.addConstraint(Sketcher.Constraint("DistanceY", 0, 2, -1, 1, Q("20.6 mm")))
sketch13.setExpression("Constraints[8]", "Params.sketch13_height")
sketch13.setExpression("Constraints[9]", "Params.sketch13_width")
pocket9 = body.newObject("PartDesign::Pocket", "Pocket008")
pocket9.Profile = sketch13
pocket9.Type = "ThroughAll"
pocket9.Reversed = True

# Sketch on XZ plane
sketch14 = body.newObject("Sketcher::SketchObject", "Sketch013")
sketch14.AttachmentSupport = (doc.getObject("XZ_Plane"), [""])
sketch14.MapMode = "FlatFace"
sketch14.addGeometry(Part.LineSegment(Vector(-28.7, 31, 0), Vector(-28.7, -31, 0)), False)
sketch14.addGeometry(Part.LineSegment(Vector(-28.7, -31, 0), Vector(28.7, -31, 0)), False)
sketch14.addGeometry(Part.LineSegment(Vector(28.7, -31, 0), Vector(28.7, 31, 0)), False)
sketch14.addGeometry(Part.LineSegment(Vector(28.7, 31, 0), Vector(-28.7, 31, 0)), False)
sketch14.addConstraint(Sketcher.Constraint("Coincident", 0, 2, 1, 1))
sketch14.addConstraint(Sketcher.Constraint("Coincident", 1, 2, 2, 1))
sketch14.addConstraint(Sketcher.Constraint("Coincident", 2, 2, 3, 1))
sketch14.addConstraint(Sketcher.Constraint("Coincident", 3, 2, 0, 1))
sketch14.addConstraint(Sketcher.Constraint("Vertical", 0))
sketch14.addConstraint(Sketcher.Constraint("Horizontal", 1))
sketch14.addConstraint(Sketcher.Constraint("Vertical", 2))
sketch14.addConstraint(Sketcher.Constraint("Horizontal", 3))
sketch14.addConstraint(Sketcher.Constraint("Symmetric", 0, 2, 2, 2, -1, 1))
sketch14.addConstraint(Sketcher.Constraint("DistanceY", 0, 2, 0, 1, Q("62 mm")))
sketch14.addConstraint(Sketcher.Constraint("DistanceX", 1, 1, 1, 2, Q("57.4 mm")))
sketch14.setExpression("Constraints[9]", "Params.sketch14_height")
sketch14.setExpression("Constraints[10]", "Params.sketch14_width")
pocket10 = body.newObject("PartDesign::Pocket", "Pocket009")
pocket10.Profile = sketch14
pocket10.Type = "TwoLengths"
pocket10.setExpression("Length", "Params.pocket10_length")
pocket10.setExpression("Length2", "Params.pocket10_length2")
pocket10.Reversed = True

# Sketch on XZ plane
sketch15 = body.newObject("Sketcher::SketchObject", "Sketch014")
sketch15.AttachmentSupport = (doc.getObject("XZ_Plane"), [""])
sketch15.MapMode = "FlatFace"
sketch15.AttachmentOffset = App.Placement(Vector(0, 0, -6), App.Rotation())
sketch15.addGeometry(Part.LineSegment(Vector(24.5, 7.6, 0), Vector(28.5, 7.6, 0)), False)
sketch15.addGeometry(Part.LineSegment(Vector(28.5, 7.6, 0), Vector(28.5, -29.6, 0)), False)
sketch15.addGeometry(Part.LineSegment(Vector(28.5, -29.6, 0), Vector(27.3, -29.6, 0)), False)
sketch15.addGeometry(Part.LineSegment(Vector(27.3, -29.6, 0), Vector(27.3, -14.4, 0)), False)
sketch15.addGeometry(Part.LineSegment(Vector(27.3, -14.4, 0), Vector(24.5, -14.4, 0)), False)
sketch15.addGeometry(Part.LineSegment(Vector(24.5, -14.4, 0), Vector(24.5, 7.6, 0)), False)
sketch15.addConstraint(Sketcher.Constraint("Coincident", 0, 2, 1, 1))
sketch15.addConstraint(Sketcher.Constraint("Coincident", 1, 2, 2, 1))
sketch15.addConstraint(Sketcher.Constraint("Coincident", 2, 2, 3, 1))
sketch15.addConstraint(Sketcher.Constraint("Coincident", 3, 2, 4, 1))
sketch15.addConstraint(Sketcher.Constraint("Coincident", 4, 2, 5, 1))
sketch15.addConstraint(Sketcher.Constraint("Coincident", 5, 2, 0, 1))
sketch15.addConstraint(Sketcher.Constraint("Horizontal", 0))
sketch15.addConstraint(Sketcher.Constraint("Vertical", 1))
sketch15.addConstraint(Sketcher.Constraint("Horizontal", 2))
sketch15.addConstraint(Sketcher.Constraint("Vertical", 3))
sketch15.addConstraint(Sketcher.Constraint("Horizontal", 4))
sketch15.addConstraint(Sketcher.Constraint("Vertical", 5))
sketch15.addConstraint(Sketcher.Constraint("DistanceX", 0, 1, 0, 2, Q("4 mm")))
sketch15.addConstraint(Sketcher.Constraint("DistanceY", 5, 1, 5, 2, Q("22 mm")))
sketch15.addConstraint(Sketcher.Constraint("DistanceX", 2, 2, 2, 1, Q("1.2 mm")))
sketch15.addConstraint(Sketcher.Constraint("DistanceY", 1, 2, 1, 1, Q("37.2 mm")))
sketch15.addConstraint(Sketcher.Constraint("DistanceX", -1, 1, 0, 2, Q("28.5 mm")))
sketch15.addConstraint(Sketcher.Constraint("DistanceY", -1, 1, 0, 2, Q("7.6 mm")))
sketch15.setExpression("Constraints[12]", "Params.sketch15_width")
sketch15.setExpression("Constraints[13]", "Params.sketch15_height")
sketch15.setExpression("Constraints[14]", "Params.sketch15_width2")
sketch15.setExpression("Constraints[15]", "Params.sketch15_height2")
pad5 = body.newObject("PartDesign::Pad", "Pad004")
pad5.Profile = sketch15
pad5.setExpression("Length", "Params.pad5_length")
pad5.Reversed = True

# Sketch on XZ plane
sketch16 = body.newObject("Sketcher::SketchObject", "Sketch015")
sketch16.AttachmentSupport = (doc.getObject("XZ_Plane"), [""])
sketch16.MapMode = "FlatFace"
sketch16.AttachmentOffset = App.Placement(Vector(0, 0, -23.6), App.Rotation())
sketch16.addGeometry(Part.LineSegment(Vector(24.5, -10.4, 0), Vector(24.5, 3.6, 0)), False)
sketch16.addGeometry(Part.LineSegment(Vector(24.5, 3.6, 0), Vector(28.5, 3.6, 0)), False)
sketch16.addGeometry(Part.LineSegment(Vector(28.5, 3.6, 0), Vector(28.5, -10.4, 0)), False)
sketch16.addGeometry(Part.LineSegment(Vector(28.5, -10.4, 0), Vector(24.5, -10.4, 0)), False)
sketch16.addConstraint(Sketcher.Constraint("Coincident", 0, 2, 1, 1))
sketch16.addConstraint(Sketcher.Constraint("Coincident", 1, 2, 2, 1))
sketch16.addConstraint(Sketcher.Constraint("Coincident", 2, 2, 3, 1))
sketch16.addConstraint(Sketcher.Constraint("Coincident", 3, 2, 0, 1))
sketch16.addConstraint(Sketcher.Constraint("Vertical", 0))
sketch16.addConstraint(Sketcher.Constraint("Horizontal", 1))
sketch16.addConstraint(Sketcher.Constraint("Vertical", 2))
sketch16.addConstraint(Sketcher.Constraint("Horizontal", 3))
sketch16.addConstraint(Sketcher.Constraint("DistanceX", 1, 1, 1, 2, Q("4 mm")))
sketch16.addConstraint(Sketcher.Constraint("DistanceY", 0, 1, 0, 2, Q("14 mm")))
sketch16.addConstraint(Sketcher.Constraint("DistanceX", -1, 1, 0, 2, Q("24.5 mm")))
sketch16.addConstraint(Sketcher.Constraint("DistanceY", -1, 1, 0, 2, Q("3.6 mm")))
sketch16.setExpression("Constraints[8]", "Params.sketch16_width")
sketch16.setExpression("Constraints[9]", "Params.sketch16_height")
pocket11 = body.newObject("PartDesign::Pocket", "Pocket010")
pocket11.Profile = sketch16
pocket11.setExpression("Length", "Params.pocket11_length")
pocket11.Reversed = True

# Sketch on XY plane
sketch17 = body.newObject("Sketcher::SketchObject", "Sketch016")
sketch17.AttachmentSupport = (doc.getObject("XY_Plane"), [""])
sketch17.MapMode = "FlatFace"
sketch17.AttachmentOffset = App.Placement(Vector(0, 0, -29.6), App.Rotation())
sketch17.addGeometry(Part.LineSegment(Vector(-12.5, 26.6, 0), Vector(-12.5, 24.6, 0)), False)
sketch17.addGeometry(Part.LineSegment(Vector(-12.5, 24.6, 0), Vector(12.5, 24.6, 0)), False)
sketch17.addGeometry(Part.LineSegment(Vector(12.5, 24.6, 0), Vector(12.5, 26.6, 0)), False)
sketch17.addGeometry(Part.LineSegment(Vector(12.5, 26.6, 0), Vector(-12.5, 26.6, 0)), False)
sketch17.addConstraint(Sketcher.Constraint("Coincident", 0, 2, 1, 1))
sketch17.addConstraint(Sketcher.Constraint("Coincident", 1, 2, 2, 1))
sketch17.addConstraint(Sketcher.Constraint("Coincident", 2, 2, 3, 1))
sketch17.addConstraint(Sketcher.Constraint("Coincident", 3, 2, 0, 1))
sketch17.addConstraint(Sketcher.Constraint("Vertical", 0))
sketch17.addConstraint(Sketcher.Constraint("Horizontal", 1))
sketch17.addConstraint(Sketcher.Constraint("Vertical", 2))
sketch17.addConstraint(Sketcher.Constraint("Horizontal", 3))
sketch17.addConstraint(Sketcher.Constraint("DistanceX", 1, 1, 1, 2, Q("25 mm")))
sketch17.addConstraint(Sketcher.Constraint("DistanceY", 0, 2, 0, 1, Q("2 mm")))
sketch17.addConstraint(Sketcher.Constraint("DistanceX", 0, 2, -1, 1, Q("12.5 mm")))
sketch17.addConstraint(Sketcher.Constraint("DistanceY", -1, 1, 0, 2, Q("24.6 mm")))
sketch17.setExpression("Constraints[8]", "Params.sketch17_width")
sketch17.setExpression("Constraints[9]", "Params.sketch17_height")
pad6 = body.newObject("PartDesign::Pad", "Pad005")
pad6.Profile = sketch17
pad6.setExpression("Length", "Params.pad6_length")

doc.recompute()
